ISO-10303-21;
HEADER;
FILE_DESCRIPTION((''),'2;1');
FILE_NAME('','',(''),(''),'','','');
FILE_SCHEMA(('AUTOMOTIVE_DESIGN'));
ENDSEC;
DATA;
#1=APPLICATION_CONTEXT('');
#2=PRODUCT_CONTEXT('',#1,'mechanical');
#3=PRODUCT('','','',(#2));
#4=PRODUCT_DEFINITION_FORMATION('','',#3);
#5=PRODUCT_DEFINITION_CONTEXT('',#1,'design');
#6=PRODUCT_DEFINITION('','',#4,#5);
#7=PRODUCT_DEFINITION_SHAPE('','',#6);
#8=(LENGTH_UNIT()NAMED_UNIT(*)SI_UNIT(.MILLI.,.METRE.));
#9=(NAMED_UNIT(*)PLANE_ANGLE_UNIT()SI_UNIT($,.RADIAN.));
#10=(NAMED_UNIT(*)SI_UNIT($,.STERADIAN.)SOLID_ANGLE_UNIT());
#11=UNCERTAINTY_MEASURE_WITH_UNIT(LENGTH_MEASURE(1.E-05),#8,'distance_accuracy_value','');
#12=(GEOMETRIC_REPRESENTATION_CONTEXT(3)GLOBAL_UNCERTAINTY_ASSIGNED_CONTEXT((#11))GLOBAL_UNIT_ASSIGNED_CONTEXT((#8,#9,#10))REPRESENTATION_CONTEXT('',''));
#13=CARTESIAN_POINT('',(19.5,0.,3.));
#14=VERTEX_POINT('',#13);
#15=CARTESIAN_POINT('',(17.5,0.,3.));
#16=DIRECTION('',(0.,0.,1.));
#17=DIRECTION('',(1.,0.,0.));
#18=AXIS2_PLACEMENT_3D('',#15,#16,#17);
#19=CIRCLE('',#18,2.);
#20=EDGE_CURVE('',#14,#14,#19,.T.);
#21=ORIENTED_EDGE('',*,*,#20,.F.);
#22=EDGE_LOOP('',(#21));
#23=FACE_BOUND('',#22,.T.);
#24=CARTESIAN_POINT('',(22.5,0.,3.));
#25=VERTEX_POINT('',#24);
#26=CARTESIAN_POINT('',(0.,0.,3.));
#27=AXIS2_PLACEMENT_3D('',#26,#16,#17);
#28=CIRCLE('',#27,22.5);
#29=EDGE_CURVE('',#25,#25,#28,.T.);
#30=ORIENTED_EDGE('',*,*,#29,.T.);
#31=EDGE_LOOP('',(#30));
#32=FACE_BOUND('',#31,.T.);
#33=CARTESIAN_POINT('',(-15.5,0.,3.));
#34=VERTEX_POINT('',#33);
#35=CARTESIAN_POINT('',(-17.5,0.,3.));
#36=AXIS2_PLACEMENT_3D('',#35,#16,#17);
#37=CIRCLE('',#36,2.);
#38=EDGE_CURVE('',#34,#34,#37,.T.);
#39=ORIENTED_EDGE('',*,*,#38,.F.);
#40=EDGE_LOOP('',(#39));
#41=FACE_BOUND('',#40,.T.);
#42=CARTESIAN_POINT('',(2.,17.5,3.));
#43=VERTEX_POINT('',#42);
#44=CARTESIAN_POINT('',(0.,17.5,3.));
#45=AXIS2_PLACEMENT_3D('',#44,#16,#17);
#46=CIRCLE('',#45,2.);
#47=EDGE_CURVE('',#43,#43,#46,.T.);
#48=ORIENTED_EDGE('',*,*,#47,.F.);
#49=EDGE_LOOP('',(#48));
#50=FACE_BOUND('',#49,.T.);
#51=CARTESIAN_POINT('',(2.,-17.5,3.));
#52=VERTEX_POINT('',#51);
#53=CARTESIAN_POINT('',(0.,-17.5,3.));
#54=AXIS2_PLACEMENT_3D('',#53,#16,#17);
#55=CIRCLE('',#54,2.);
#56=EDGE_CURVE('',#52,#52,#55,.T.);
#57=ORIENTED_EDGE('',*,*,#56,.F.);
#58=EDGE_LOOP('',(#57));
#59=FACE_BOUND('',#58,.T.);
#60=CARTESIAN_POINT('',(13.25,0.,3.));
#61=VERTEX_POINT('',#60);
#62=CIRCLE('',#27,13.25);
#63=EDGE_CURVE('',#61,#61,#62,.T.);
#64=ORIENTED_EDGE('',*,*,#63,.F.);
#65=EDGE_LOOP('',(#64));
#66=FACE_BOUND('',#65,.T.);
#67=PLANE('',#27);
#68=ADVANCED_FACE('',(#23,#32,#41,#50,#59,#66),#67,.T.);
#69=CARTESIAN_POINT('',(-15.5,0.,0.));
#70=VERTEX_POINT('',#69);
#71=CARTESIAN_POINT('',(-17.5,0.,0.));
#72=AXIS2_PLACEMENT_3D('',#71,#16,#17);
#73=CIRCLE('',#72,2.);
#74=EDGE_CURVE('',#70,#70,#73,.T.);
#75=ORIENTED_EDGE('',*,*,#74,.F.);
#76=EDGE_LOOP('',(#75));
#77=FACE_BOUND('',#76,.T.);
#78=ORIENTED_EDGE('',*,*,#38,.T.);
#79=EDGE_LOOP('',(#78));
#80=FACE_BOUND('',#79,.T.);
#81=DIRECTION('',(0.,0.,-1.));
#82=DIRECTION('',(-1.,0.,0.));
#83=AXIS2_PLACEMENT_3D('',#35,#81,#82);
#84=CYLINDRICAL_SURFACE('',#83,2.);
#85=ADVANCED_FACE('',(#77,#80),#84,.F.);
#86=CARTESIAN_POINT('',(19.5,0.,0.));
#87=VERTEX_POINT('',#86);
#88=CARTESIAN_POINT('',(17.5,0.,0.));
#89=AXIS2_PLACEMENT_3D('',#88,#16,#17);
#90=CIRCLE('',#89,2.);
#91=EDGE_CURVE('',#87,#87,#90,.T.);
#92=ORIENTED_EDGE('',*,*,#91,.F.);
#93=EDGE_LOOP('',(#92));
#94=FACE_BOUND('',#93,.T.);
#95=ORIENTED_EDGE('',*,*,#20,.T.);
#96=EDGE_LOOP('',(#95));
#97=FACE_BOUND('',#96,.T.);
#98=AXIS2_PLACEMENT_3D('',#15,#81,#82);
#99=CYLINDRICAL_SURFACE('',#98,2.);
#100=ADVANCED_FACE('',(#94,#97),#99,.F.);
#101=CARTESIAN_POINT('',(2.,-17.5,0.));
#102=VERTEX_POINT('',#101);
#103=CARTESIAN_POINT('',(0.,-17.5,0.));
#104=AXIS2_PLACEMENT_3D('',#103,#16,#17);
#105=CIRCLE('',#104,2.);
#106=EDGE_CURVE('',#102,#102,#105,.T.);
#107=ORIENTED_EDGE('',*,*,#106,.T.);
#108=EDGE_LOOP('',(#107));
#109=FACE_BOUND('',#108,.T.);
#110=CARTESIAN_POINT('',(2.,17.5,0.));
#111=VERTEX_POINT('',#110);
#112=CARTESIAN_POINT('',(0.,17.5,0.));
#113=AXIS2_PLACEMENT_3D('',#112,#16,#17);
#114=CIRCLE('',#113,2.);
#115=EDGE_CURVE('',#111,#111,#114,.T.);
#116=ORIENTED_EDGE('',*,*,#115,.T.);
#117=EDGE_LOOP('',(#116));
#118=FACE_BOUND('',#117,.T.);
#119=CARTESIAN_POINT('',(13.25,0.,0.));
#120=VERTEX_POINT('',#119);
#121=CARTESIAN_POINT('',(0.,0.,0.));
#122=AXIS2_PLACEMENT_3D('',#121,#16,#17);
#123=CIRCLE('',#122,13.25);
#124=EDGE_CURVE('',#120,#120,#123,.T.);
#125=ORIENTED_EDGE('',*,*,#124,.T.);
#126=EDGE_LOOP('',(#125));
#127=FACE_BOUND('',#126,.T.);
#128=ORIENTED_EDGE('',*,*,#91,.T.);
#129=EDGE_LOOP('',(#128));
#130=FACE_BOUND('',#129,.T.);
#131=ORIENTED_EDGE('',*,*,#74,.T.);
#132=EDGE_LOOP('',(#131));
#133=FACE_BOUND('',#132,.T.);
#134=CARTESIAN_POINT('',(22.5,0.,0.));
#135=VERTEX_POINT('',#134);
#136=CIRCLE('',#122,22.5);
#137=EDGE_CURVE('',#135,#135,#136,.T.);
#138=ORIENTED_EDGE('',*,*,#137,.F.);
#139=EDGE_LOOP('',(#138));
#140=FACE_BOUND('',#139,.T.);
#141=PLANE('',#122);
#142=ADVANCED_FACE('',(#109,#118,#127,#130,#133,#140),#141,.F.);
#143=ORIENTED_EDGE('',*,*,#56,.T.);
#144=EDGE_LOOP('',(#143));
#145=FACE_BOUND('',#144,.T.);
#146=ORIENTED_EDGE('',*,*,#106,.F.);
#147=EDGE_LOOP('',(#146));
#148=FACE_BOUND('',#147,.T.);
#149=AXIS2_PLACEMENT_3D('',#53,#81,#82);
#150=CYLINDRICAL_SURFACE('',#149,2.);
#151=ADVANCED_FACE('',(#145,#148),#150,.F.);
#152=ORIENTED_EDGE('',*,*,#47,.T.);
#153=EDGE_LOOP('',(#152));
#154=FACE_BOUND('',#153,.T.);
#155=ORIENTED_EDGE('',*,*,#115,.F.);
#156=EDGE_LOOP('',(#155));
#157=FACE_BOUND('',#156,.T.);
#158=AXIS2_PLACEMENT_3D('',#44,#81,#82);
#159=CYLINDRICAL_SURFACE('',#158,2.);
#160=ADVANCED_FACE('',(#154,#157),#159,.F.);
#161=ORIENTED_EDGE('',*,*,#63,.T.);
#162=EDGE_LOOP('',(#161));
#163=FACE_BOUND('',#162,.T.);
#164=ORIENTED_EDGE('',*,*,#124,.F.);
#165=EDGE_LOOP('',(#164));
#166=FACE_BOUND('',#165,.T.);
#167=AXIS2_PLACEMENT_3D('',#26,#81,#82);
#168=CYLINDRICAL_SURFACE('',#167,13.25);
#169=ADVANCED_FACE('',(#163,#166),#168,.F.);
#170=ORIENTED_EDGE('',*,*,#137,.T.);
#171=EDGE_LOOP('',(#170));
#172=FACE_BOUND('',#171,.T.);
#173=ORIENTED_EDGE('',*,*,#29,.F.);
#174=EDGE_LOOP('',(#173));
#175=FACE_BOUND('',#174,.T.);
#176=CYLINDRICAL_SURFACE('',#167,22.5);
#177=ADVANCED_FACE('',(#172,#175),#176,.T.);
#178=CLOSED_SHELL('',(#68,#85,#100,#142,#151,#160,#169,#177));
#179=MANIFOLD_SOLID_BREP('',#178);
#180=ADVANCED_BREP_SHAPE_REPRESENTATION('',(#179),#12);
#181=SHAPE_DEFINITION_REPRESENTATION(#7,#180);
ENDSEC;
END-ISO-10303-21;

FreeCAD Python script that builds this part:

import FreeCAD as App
import Part
import Sketcher
Q = App.Units.Quantity

doc = App.newDocument("Part")
body = doc.addObject("PartDesign::Body", "Body")

# Sketch on XY plane
sketch1 = body.newObject("Sketcher::SketchObject", "Sketch")
sketch1.AttachmentSupport = (doc.getObject("XY_Plane"), [""])
sketch1.MapMode = "FlatFace"
sketch1.addGeometry(Part.Circle(App.Vector(0, 0, 0), App.Vector(0, 0, 1), 22.5), False)
sketch1.addGeometry(Part.Circle(App.Vector(0, -17.5, 0), App.Vector(0, 0, 1), 2), False)
sketch1.addGeometry(Part.Circle(App.Vector(-17.5, 0, 0), App.Vector(0, 0, 1), 2), False)
sketch1.addGeometry(Part.Circle(App.Vector(0, 0, 0), App.Vector(0, 0, 1), 13.2), False)
sketch1.addGeometry(Part.Circle(App.Vector(17.5, 0, 0), App.Vector(0, 0, 1), 2), False)
sketch1.addGeometry(Part.Circle(App.Vector(0, 17.5, 0), App.Vector(0, 0, 1), 2), False)
sketch1.addConstraint(Sketcher.Constraint("Coincident", 0, 3, -1, 1))
sketch1.addConstraint(Sketcher.Constraint("Coincident", 3, 3, -1, 1))
sketch1.addConstraint(Sketcher.Constraint("Equal", 1, 2))
sketch1.addConstraint(Sketcher.Constraint("Equal", 2, 4))
sketch1.addConstraint(Sketcher.Constraint("Equal", 4, 5))
sketch1.addConstraint(Sketcher.Constraint("Symmetric", 2, 3, 4, 3, -1, 1))
sketch1.addConstraint(Sketcher.Constraint("Symmetric", 1, 3, 5, 3, -1, 1))
sketch1.addConstraint(Sketcher.Constraint("PointOnObject", 1, 3, -2))
sketch1.addConstraint(Sketcher.Constraint("PointOnObject", 2, 3, -1))
sketch1.addConstraint(Sketcher.Constraint("Diameter", 0, Q("45 mm")))
sketch1.addConstraint(Sketcher.Constraint("Diameter", 1, Q("4 mm")))
sketch1.addConstraint(Sketcher.Constraint("Diameter", 3, Q("26.5 mm")))
sketch1.addConstraint(Sketcher.Constraint("DistanceX", 2, 3, 4, 3, Q("35 mm")))
sketch1.addConstraint(Sketcher.Constraint("DistanceY", 1, 3, 5, 3, Q("35 mm")))
pad1 = body.newObject("PartDesign::Pad", "Pad")
pad1.Profile = sketch1
pad1.Length = 3

doc.recompute()
